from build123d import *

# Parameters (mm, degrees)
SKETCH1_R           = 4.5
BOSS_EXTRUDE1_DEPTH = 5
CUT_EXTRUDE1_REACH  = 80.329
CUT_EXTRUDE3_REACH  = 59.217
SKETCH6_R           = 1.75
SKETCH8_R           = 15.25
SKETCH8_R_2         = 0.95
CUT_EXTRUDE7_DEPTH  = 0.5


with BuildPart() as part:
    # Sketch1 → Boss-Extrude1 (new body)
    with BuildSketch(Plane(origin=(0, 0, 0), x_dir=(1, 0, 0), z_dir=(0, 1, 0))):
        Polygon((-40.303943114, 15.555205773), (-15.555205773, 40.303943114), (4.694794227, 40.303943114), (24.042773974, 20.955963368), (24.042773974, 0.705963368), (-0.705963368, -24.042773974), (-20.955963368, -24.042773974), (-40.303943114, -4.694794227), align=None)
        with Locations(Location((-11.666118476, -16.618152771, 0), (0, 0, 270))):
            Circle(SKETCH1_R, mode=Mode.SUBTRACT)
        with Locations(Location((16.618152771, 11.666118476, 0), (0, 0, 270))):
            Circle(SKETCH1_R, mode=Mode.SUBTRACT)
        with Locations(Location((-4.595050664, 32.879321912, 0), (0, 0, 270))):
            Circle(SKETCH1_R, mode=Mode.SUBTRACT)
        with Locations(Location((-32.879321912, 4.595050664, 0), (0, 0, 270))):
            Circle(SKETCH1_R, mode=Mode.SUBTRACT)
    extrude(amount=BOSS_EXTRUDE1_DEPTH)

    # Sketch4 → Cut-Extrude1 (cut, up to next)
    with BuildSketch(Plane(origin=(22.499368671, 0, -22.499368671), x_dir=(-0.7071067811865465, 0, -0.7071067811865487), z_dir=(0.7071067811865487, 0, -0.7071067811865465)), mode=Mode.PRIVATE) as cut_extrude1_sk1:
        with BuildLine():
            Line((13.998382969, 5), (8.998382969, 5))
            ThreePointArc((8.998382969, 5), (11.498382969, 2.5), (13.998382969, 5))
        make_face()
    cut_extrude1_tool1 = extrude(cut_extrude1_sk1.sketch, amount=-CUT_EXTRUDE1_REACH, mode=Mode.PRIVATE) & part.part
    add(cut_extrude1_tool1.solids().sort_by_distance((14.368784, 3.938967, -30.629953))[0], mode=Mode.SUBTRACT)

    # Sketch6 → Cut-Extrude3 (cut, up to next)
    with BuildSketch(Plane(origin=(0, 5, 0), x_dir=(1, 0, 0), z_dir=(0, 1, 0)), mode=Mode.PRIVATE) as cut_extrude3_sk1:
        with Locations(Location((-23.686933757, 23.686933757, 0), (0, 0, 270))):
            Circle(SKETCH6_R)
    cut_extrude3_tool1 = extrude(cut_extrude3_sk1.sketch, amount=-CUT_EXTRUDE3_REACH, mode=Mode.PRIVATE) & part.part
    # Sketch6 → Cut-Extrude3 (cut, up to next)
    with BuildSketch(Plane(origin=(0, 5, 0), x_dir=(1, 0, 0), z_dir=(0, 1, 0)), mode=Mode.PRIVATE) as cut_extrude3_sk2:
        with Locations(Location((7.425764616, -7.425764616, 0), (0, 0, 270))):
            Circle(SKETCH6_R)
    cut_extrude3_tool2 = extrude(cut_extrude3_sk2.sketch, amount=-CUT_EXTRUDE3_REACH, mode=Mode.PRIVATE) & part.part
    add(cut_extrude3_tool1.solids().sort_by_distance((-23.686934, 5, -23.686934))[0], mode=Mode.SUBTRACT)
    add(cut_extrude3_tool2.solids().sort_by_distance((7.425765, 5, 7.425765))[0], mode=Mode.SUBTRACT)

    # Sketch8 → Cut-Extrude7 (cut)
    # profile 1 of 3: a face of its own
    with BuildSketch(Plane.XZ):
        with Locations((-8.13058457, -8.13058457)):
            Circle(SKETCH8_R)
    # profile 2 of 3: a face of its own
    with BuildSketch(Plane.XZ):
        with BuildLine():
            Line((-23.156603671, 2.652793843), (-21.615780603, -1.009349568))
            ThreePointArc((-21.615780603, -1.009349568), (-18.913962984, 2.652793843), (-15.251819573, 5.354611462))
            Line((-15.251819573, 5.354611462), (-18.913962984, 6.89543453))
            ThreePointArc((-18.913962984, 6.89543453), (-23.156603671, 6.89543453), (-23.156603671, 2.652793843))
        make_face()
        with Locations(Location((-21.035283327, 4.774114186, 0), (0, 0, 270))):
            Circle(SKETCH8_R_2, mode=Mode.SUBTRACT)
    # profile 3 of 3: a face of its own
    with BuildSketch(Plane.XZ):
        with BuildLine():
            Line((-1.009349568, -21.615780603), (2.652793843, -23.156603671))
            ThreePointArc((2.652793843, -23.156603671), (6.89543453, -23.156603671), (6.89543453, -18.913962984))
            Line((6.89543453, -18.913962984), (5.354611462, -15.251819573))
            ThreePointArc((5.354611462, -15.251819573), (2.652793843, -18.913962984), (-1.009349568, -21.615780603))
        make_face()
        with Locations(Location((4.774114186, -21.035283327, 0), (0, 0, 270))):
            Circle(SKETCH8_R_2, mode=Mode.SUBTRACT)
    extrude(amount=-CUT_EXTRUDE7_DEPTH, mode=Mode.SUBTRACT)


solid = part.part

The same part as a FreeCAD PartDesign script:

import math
import FreeCAD as App
import Part
import Sketcher

V = App.Vector
Q = App.Units.Quantity


def add_polygon(sketch, points):
    """Adds a closed chain of lines whose ends are joined by coincident constraints."""
    first, n = sketch.GeometryCount, len(points)
    for a, b in zip(points, points[1:] + points[:1]):
        sketch.addGeometry(Part.LineSegment(App.Vector(*a, 0), App.Vector(*b, 0)), False)
    for i in range(n):
        sketch.addConstraint(Sketcher.Constraint("Coincident", first + i, 2, first + (i + 1) % n, 1))

doc = App.newDocument("Part")
params = doc.addObject("Spreadsheet::Sheet", "Params")
for row, (alias, value) in enumerate([
    ("sketch1_diameter", "9 mm"),
    ("sketch1_length", "35 mm"),
    ("sketch1_width", "20.25 mm"),
    ("pad1_length", "5 mm"),
    ("sketch2_radius", "2.5 mm"),
    ("sketch3_diameter", "3.5 mm"),
    ("sketch4_diameter", "3.5 mm"),
    ("sketch5_radius", "3 mm"),
    ("sketch5_diameter", "1.9 mm"),
    ("sketch5_radius2", "15.25 mm"),
    ("pocket4_length", "0.5 mm"),
], start=1):
    params.set(f"A{row}", alias)
    params.set(f"B{row}", "=" + value)
    params.setAlias(f"B{row}", alias)

body = doc.addObject("PartDesign::Body", "Body")

sketch1 = body.newObject("Sketcher::SketchObject", "Sketch")
sketch1.AttachmentSupport = (doc.getObject("XZ_Plane"), [""])
sketch1.MapMode = "FlatFace"
add_polygon(sketch1, [(-15.6, -40.3), (-40.3, -15.6), (-40.3, 4.7), (-21, 24), (-0.7, 24), (24, -0.7), (24, -21), (4.7, -40.3)])
sketch1.addGeometry(Part.Circle(V(-11.7, 16.6, 0), V(0, 0, 1), 4.5), False)
sketch1.addGeometry(Part.Circle(V(-32.9, -4.6, 0), V(0, 0, 1), 4.5), False)
sketch1.addGeometry(Part.Circle(V(16.6, -11.7, 0), V(0, 0, 1), 4.5), False)
sketch1.addGeometry(Part.Circle(V(-4.6, -32.9, 0), V(0, 0, 1), 4.5), False)
sketch1.addConstraint([
    Sketcher.Constraint("Vertical", 1),
    Sketcher.Constraint("Horizontal", 3),
    Sketcher.Constraint("Vertical", 5),
    Sketcher.Constraint("Horizontal", 7),
    Sketcher.Constraint("Equal", 8, 9),
    Sketcher.Constraint("Equal", 9, 10),
    Sketcher.Constraint("Equal", 10, 11),
    Sketcher.Constraint("Perpendicular", 0, 2),
    Sketcher.Constraint("Perpendicular", 2, 4),
    Sketcher.Constraint("Perpendicular", 4, 6),
    Sketcher.Constraint("Equal", 3, 7),
    Sketcher.Constraint("Equal", 7, 1),
    Sketcher.Constraint("Equal", 1, 5),
    Sketcher.Constraint("Diameter", 8, Q("9 mm")),
    Sketcher.Constraint("Angle", 0, Q("135 deg")),
    Sketcher.Constraint("Distance", 0, Q("35 mm")),
    Sketcher.Constraint("DistanceX", 3, 1, 3, 2, Q("20.25 mm")),
    Sketcher.Constraint("DistanceX", 8, 3, -1, 1, Q("11.666118 mm")),
    Sketcher.Constraint("DistanceX", 9, 3, -1, 1, Q("32.879322 mm")),
    Sketcher.Constraint("DistanceY", 9, 3, -1, 1, Q("4.595051 mm")),
    Sketcher.Constraint("DistanceY", 10, 3, -1, 1, Q("11.666118 mm")),
    Sketcher.Constraint("DistanceX", 11, 3, -1, 1, Q("4.595051 mm")),
    Sketcher.Constraint("DistanceY", 11, 3, -1, 1, Q("32.879322 mm")),
    Sketcher.Constraint("DistanceX", 8, 3, 10, 3, Q("28.284271 mm")),
    Sketcher.Constraint("DistanceY", 10, 3, 8, 3, Q("28.284271 mm")),
    Sketcher.Constraint("DistanceX", 0, 2, 9, 3, Q("7.424621 mm")),
    Sketcher.Constraint("DistanceY", 0, 2, 8, 3, Q("32.173359 mm")),
    Sketcher.Constraint("DistanceY", 8, 3, 2, 2, Q("7.424621 mm")),
])
sketch1.setExpression("Constraints[21]", "Params.sketch1_diameter")
sketch1.setExpression("Constraints[23]", "Params.sketch1_length")
sketch1.setExpression("Constraints[24]", "Params.sketch1_width")
pad1 = body.newObject("PartDesign::Pad", "Pad")
pad1.Profile = sketch1
pad1.setExpression("Length", "Params.pad1_length")
pad1.Reversed = True

sketch2 = body.newObject("Sketcher::SketchObject", "Sketch001")
sketch2.Placement = App.Placement(V(22.499369, 0, -22.499369), App.Rotation(V(-0.707106781, 0, -0.707106781), V(0, 0.999999999, 0), V(0.707106781, 0, -0.707106781), "ZXY"))
sketch2.addGeometry([
    Part.LineSegment(V(14, 5, 0), V(9, 5, 0)),
    Part.ArcOfCircle(Part.Circle(V(11.5, 5, 0), V(0, 0, 1), 2.5), math.radians(180), math.radians(360)),
], False)
sketch2.addConstraint([
    Sketcher.Constraint("Coincident", 0, 1, 1, 2),
    Sketcher.Constraint("Coincident", 1, 1, 0, 2),
    Sketcher.Constraint("Horizontal", 0),
    Sketcher.Constraint("Horizontal", 1, 3, 0, 1),
    Sketcher.Constraint("Radius", 1, Q("2.5 mm")),
    Sketcher.Constraint("DistanceY", -1, 1, 1, 3, Q("5 mm")),
    Sketcher.Constraint("DistanceX", -1, 1, 1, 3, Q("11.498383 mm")),
])
sketch2.setExpression("Constraints[4]", "Params.sketch2_radius")
pocket1 = body.newObject("PartDesign::Pocket", "Pocket")
pocket1.Profile = sketch2
pocket1.Type = "UpToFirst"

sketch3 = body.newObject("Sketcher::SketchObject", "Sketch002")
sketch3.AttachmentSupport = (doc.getObject("XZ_Plane"), [""])
sketch3.MapMode = "FlatFace"
sketch3.AttachmentOffset = App.Placement(V(0, 0, -5), App.Rotation())
sketch3.addGeometry(Part.Circle(V(-23.7, -23.7, 0), V(0, 0, 1), 1.8), False)
sketch3.addConstraint([
    Sketcher.Constraint("Diameter", 0, Q("3.5 mm")),
    Sketcher.Constraint("DistanceX", 0, 3, -1, 1, Q("23.686934 mm")),
    Sketcher.Constraint("DistanceY", 0, 3, -1, 1, Q("23.686934 mm")),
])
sketch3.setExpression("Constraints[0]", "Params.sketch3_diameter")
pocket2 = body.newObject("PartDesign::Pocket", "Pocket001")
pocket2.Profile = sketch3
pocket2.Type = "UpToFirst"
pocket2.Reversed = True

sketch4 = body.newObject("Sketcher::SketchObject", "Sketch003")
sketch4.AttachmentSupport = (doc.getObject("XZ_Plane"), [""])
sketch4.MapMode = "FlatFace"
sketch4.AttachmentOffset = App.Placement(V(0, 0, -5), App.Rotation())
sketch4.addGeometry(Part.Circle(V(7.4, 7.4, 0), V(0, 0, 1), 1.8), False)
sketch4.addConstraint([
    Sketcher.Constraint("Diameter", 0, Q("3.5 mm")),
    Sketcher.Constraint("DistanceX", -1, 1, 0, 3, Q("7.425765 mm")),
    Sketcher.Constraint("DistanceY", -1, 1, 0, 3, Q("7.425765 mm")),
])
sketch4.setExpression("Constraints[0]", "Params.sketch4_diameter")
pocket3 = body.newObject("PartDesign::Pocket", "Pocket002")
pocket3.Profile = sketch4
pocket3.Type = "UpToFirst"
pocket3.Reversed = True

sketch5 = body.newObject("Sketcher::SketchObject", "Sketch004")
sketch5.AttachmentSupport = (doc.getObject("XZ_Plane"), [""])
sketch5.MapMode = "FlatFace"
sketch5.addGeometry([
    Part.LineSegment(V(-15.3, 5.4, 0), V(-18.9, 6.9, 0)),
    Part.ArcOfCircle(Part.Circle(V(-21, 4.8, 0), V(0, 0, 1), 3), math.radians(45), math.radians(225)),
    Part.LineSegment(V(-23.2, 2.7, 0), V(-21.6, -1, 0)),
    Part.ArcOfCircle(Part.Circle(V(-8.1, -8.1, 0), V(0, 0, 1), 15.2), math.radians(152), math.radians(298)),
    Part.LineSegment(V(-1, -21.6, 0), V(2.7, -23.2, 0)),
    Part.ArcOfCircle(Part.Circle(V(4.8, -21, 0), V(0, 0, 1), 3), math.radians(-135), math.radians(45)),
    Part.LineSegment(V(6.9, -18.9, 0), V(5.4, -15.3, 0)),
    Part.ArcOfCircle(Part.Circle(V(-8.1, -8.1, 0), V(0, 0, 1), 15.2), math.radians(-28), math.radians(118)),
    Part.Circle(V(-21, 4.8, 0), V(0, 0, 1), 0.9),
    Part.Circle(V(4.8, -21, 0), V(0, 0, 1), 0.9),
], False)
sketch5.addConstraint([
    Sketcher.Constraint("Coincident", 0, 2, 1, 1),
    Sketcher.Constraint("Coincident", 1, 2, 2, 1),
    Sketcher.Constraint("Coincident", 2, 2, 3, 1),
    Sketcher.Constraint("Coincident", 3, 2, 4, 1),
    Sketcher.Constraint("Coincident", 4, 2, 5, 1),
    Sketcher.Constraint("Coincident", 5, 2, 6, 1),
    Sketcher.Constraint("Coincident", 6, 2, 7, 1),
    Sketcher.Constraint("Coincident", 7, 2, 0, 1),
    Sketcher.Constraint("Coincident", 7, 3, 3, 3),
    Sketcher.Constraint("Coincident", 8, 3, 1, 3),
    Sketcher.Constraint("Coincident", 9, 3, 5, 3),
    Sketcher.Constraint("Equal", 1, 5),
    Sketcher.Constraint("Equal", 3, 7),
    Sketcher.Constraint("Equal", 8, 9),
    Sketcher.Constraint("Parallel", 0, 4),
    Sketcher.Constraint("Parallel", 2, 6),
    Sketcher.Constraint("Equal", 0, 2),
    Sketcher.Constraint("Equal", 2, 4),
    Sketcher.Constraint("Equal", 4, 6),
    Sketcher.Constraint("Radius", 1, Q("3 mm")),
    Sketcher.Constraint("Diameter", 8, Q("1.9 mm")),
    Sketcher.Constraint("Radius", 3, Q("15.25 mm")),
    Sketcher.Constraint("DistanceX", 1, 3, 3, 3, Q("12.904699 mm")),
    Sketcher.Constraint("DistanceY", 3, 3, 1, 3, Q("12.904699 mm")),
    Sketcher.Constraint("DistanceX", 3, 3, 5, 3, Q("12.904699 mm")),
    Sketcher.Constraint("DistanceY", 5, 3, 3, 3, Q("12.904699 mm")),
    Sketcher.Constraint("Distance", 0, Q("3.973088 mm")),
    Sketcher.Constraint("DistanceX", 2, 2, -1, 1, Q("21.615781 mm")),
    Sketcher.Constraint("DistanceY", 2, 2, -1, 1, Q("1.00935 mm")),
    Sketcher.Constraint("DistanceX", 3, 2, -1, 1, Q("1.00935 mm")),
    Sketcher.Constraint("DistanceY", 3, 2, -1, 1, Q("21.615781 mm")),
])
sketch5.setExpression("Constraints[19]", "Params.sketch5_radius")
sketch5.setExpression("Constraints[20]", "Params.sketch5_diameter")
sketch5.setExpression("Constraints[21]", "Params.sketch5_radius2")
pocket4 = body.newObject("PartDesign::Pocket", "Pocket003")
pocket4.Profile = sketch5
pocket4.setExpression("Length", "Params.pocket4_length")

doc.recompute()
